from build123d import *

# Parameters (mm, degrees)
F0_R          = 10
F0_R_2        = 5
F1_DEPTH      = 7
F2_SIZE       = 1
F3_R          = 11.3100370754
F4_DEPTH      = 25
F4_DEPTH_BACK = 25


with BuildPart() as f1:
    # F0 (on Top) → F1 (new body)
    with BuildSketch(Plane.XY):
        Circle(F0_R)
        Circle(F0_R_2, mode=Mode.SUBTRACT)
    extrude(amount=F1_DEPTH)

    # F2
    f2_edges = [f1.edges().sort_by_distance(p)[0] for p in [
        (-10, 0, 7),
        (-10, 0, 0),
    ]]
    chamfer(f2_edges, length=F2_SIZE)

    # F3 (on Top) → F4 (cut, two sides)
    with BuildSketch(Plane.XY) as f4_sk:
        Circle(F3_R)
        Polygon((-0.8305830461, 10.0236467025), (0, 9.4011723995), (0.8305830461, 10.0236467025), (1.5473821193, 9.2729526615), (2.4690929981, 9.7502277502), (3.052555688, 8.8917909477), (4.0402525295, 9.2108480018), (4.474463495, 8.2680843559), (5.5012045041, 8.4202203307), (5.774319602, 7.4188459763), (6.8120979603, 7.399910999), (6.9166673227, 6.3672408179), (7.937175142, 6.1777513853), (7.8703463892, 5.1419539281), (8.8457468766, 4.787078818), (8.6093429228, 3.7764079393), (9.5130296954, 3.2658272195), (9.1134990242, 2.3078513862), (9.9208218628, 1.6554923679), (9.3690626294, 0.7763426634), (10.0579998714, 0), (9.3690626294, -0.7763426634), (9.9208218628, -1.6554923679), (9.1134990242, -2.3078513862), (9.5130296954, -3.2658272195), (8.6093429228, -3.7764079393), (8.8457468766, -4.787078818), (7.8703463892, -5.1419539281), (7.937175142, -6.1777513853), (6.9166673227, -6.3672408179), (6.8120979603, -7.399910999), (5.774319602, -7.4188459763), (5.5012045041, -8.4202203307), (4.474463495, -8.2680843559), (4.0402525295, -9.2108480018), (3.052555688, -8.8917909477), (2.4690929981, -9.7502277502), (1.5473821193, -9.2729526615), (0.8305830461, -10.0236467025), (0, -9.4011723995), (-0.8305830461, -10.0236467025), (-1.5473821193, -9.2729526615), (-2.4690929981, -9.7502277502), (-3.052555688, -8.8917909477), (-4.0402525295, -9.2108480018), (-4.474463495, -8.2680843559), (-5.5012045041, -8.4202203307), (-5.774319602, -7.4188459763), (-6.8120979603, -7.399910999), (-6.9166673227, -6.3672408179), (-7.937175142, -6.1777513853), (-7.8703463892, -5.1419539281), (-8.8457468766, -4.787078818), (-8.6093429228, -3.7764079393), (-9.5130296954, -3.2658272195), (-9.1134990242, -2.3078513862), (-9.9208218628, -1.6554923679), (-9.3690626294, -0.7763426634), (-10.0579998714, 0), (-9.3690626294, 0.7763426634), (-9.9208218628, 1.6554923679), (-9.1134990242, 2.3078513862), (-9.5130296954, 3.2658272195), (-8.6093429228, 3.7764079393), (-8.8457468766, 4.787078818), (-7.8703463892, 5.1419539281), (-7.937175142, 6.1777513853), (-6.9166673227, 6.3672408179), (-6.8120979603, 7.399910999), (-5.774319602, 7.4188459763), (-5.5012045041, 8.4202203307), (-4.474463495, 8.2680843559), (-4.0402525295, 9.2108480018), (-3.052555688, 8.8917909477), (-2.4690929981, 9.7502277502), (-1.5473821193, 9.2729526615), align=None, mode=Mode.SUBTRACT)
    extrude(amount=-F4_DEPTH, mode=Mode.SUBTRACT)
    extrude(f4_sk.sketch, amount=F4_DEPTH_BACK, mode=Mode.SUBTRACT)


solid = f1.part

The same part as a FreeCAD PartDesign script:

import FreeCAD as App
import Part
import Sketcher
from FreeCAD import Vector
Q = App.Units.Quantity


def edges_at(feature, points):
    """Names of the edges that pass closest to the given points."""
    edges = feature.Shape.Edges
    near = lambda p: min(range(len(edges)), key=lambda i: edges[i].distToShape(Part.Vertex(*p))[0])
    return sorted({f"Edge{near(p) + 1}" for p in points})

doc = App.newDocument("Part")
body = doc.addObject("PartDesign::Body", "Body")

# Sketch on XY plane
sketch1 = doc.addObject("Sketcher::SketchObject", "Sketch")
body.addObject(sketch1)
sketch1.AttachmentSupport = (doc.XY_Plane, [""])
sketch1.MapMode = "FlatFace"
sketch1.addGeometry([
    Part.Circle(Vector(0, 0, 0), Vector(0, 0, 1), 10),
    Part.Circle(Vector(0, 0, 0), Vector(0, 0, 1), 5),
], False)
sketch1.addConstraint([
    Sketcher.Constraint("Coincident", 0, 3, -1, 1),
    Sketcher.Constraint("Coincident", 1, 3, -1, 1),
    Sketcher.Constraint("Diameter", 0, Q("20 mm")),
    Sketcher.Constraint("Diameter", 1, Q("10 mm")),
])
pad1 = doc.addObject("PartDesign::Pad", "Pad")
body.addObject(pad1)
pad1.Profile = sketch1
pad1.Length = 7
doc.recompute()

chamfer = doc.addObject("PartDesign::Chamfer", "Chamfer")
body.addObject(chamfer)
chamfer.Base = (pad1, edges_at(pad1, [(-10, 0, 7), (-10, 0, 0)]))
chamfer.Size = 1

# Sketch on XY plane
sketch2 = doc.addObject("Sketcher::SketchObject", "Sketch001")
body.addObject(sketch2)
sketch2.AttachmentSupport = (doc.XY_Plane, [""])
sketch2.MapMode = "FlatFace"
sketch2.addGeometry([
    Part.Circle(Vector(0, 0, 0), Vector(0, 0, 1), 11.3),  # 0
    Part.LineSegment(Vector(-1.5, 9.3, 0), Vector(-0.8, 10, 0)),  # 1
    Part.LineSegment(Vector(-0.8, 10, 0), Vector(0, 9.4, 0)),  # 2
    Part.LineSegment(Vector(0, 9.4, 0), Vector(0.8, 10, 0)),  # 3
    Part.LineSegment(Vector(0.8, 10, 0), Vector(1.5, 9.3, 0)),  # 4
    Part.LineSegment(Vector(1.5, 9.3, 0), Vector(2.5, 9.8, 0)),  # 5
    Part.LineSegment(Vector(2.5, 9.8, 0), Vector(3.1, 8.9, 0)),  # 6
    Part.LineSegment(Vector(3.1, 8.9, 0), Vector(4, 9.2, 0)),  # 7
    Part.LineSegment(Vector(4, 9.2, 0), Vector(4.5, 8.3, 0)),  # 8
    Part.LineSegment(Vector(4.5, 8.3, 0), Vector(5.5, 8.4, 0)),  # 9
    Part.LineSegment(Vector(5.5, 8.4, 0), Vector(5.8, 7.4, 0)),  # 10
    Part.LineSegment(Vector(5.8, 7.4, 0), Vector(6.8, 7.4, 0)),  # 11
    Part.LineSegment(Vector(6.8, 7.4, 0), Vector(6.9, 6.4, 0)),  # 12
    Part.LineSegment(Vector(6.9, 6.4, 0), Vector(7.9, 6.2, 0)),  # 13
    Part.LineSegment(Vector(7.9, 6.2, 0), Vector(7.9, 5.1, 0)),  # 14
    Part.LineSegment(Vector(7.9, 5.1, 0), Vector(8.8, 4.8, 0)),  # 15
    Part.LineSegment(Vector(8.8, 4.8, 0), Vector(8.6, 3.8, 0)),  # 16
    Part.LineSegment(Vector(8.6, 3.8, 0), Vector(9.5, 3.3, 0)),  # 17
    Part.LineSegment(Vector(9.5, 3.3, 0), Vector(9.1, 2.3, 0)),  # 18
    Part.LineSegment(Vector(9.1, 2.3, 0), Vector(9.9, 1.7, 0)),  # 19
    Part.LineSegment(Vector(9.9, 1.7, 0), Vector(9.4, 0.8, 0)),  # 20
    Part.LineSegment(Vector(9.4, 0.8, 0), Vector(10.1, 0, 0)),  # 21
    Part.LineSegment(Vector(10.1, 0, 0), Vector(9.4, -0.8, 0)),  # 22
    Part.LineSegment(Vector(9.4, -0.8, 0), Vector(9.9, -1.7, 0)),  # 23
    Part.LineSegment(Vector(9.9, -1.7, 0), Vector(9.1, -2.3, 0)),  # 24
    Part.LineSegment(Vector(9.1, -2.3, 0), Vector(9.5, -3.3, 0)),  # 25
    Part.LineSegment(Vector(9.5, -3.3, 0), Vector(8.6, -3.8, 0)),  # 26
    Part.LineSegment(Vector(8.6, -3.8, 0), Vector(8.8, -4.8, 0)),  # 27
    Part.LineSegment(Vector(8.8, -4.8, 0), Vector(7.9, -5.1, 0)),  # 28
    Part.LineSegment(Vector(7.9, -5.1, 0), Vector(7.9, -6.2, 0)),  # 29
    Part.LineSegment(Vector(7.9, -6.2, 0), Vector(6.9, -6.4, 0)),  # 30
    Part.LineSegment(Vector(6.9, -6.4, 0), Vector(6.8, -7.4, 0)),  # 31
    Part.LineSegment(Vector(6.8, -7.4, 0), Vector(5.8, -7.4, 0)),  # 32
    Part.LineSegment(Vector(5.8, -7.4, 0), Vector(5.5, -8.4, 0)),  # 33
    Part.LineSegment(Vector(5.5, -8.4, 0), Vector(4.5, -8.3, 0)),  # 34
    Part.LineSegment(Vector(4.5, -8.3, 0), Vector(4, -9.2, 0)),  # 35
    Part.LineSegment(Vector(4, -9.2, 0), Vector(3.1, -8.9, 0)),  # 36
    Part.LineSegment(Vector(3.1, -8.9, 0), Vector(2.5, -9.8, 0)),  # 37
    Part.LineSegment(Vector(2.5, -9.8, 0), Vector(1.5, -9.3, 0)),  # 38
    Part.LineSegment(Vector(1.5, -9.3, 0), Vector(0.8, -10, 0)),  # 39
    Part.LineSegment(Vector(0.8, -10, 0), Vector(0, -9.4, 0)),  # 40
    Part.LineSegment(Vector(0, -9.4, 0), Vector(-0.8, -10, 0)),  # 41
    Part.LineSegment(Vector(-0.8, -10, 0), Vector(-1.5, -9.3, 0)),  # 42
    Part.LineSegment(Vector(-1.5, -9.3, 0), Vector(-2.5, -9.8, 0)),  # 43
    Part.LineSegment(Vector(-2.5, -9.8, 0), Vector(-3.1, -8.9, 0)),  # 44
    Part.LineSegment(Vector(-3.1, -8.9, 0), Vector(-4, -9.2, 0)),  # 45
    Part.LineSegment(Vector(-4, -9.2, 0), Vector(-4.5, -8.3, 0)),  # 46
    Part.LineSegment(Vector(-4.5, -8.3, 0), Vector(-5.5, -8.4, 0)),  # 47
    Part.LineSegment(Vector(-5.5, -8.4, 0), Vector(-5.8, -7.4, 0)),  # 48
    Part.LineSegment(Vector(-5.8, -7.4, 0), Vector(-6.8, -7.4, 0)),  # 49
    Part.LineSegment(Vector(-6.8, -7.4, 0), Vector(-6.9, -6.4, 0)),  # 50
    Part.LineSegment(Vector(-6.9, -6.4, 0), Vector(-7.9, -6.2, 0)),  # 51
    Part.LineSegment(Vector(-7.9, -6.2, 0), Vector(-7.9, -5.1, 0)),  # 52
    Part.LineSegment(Vector(-7.9, -5.1, 0), Vector(-8.8, -4.8, 0)),  # 53
    Part.LineSegment(Vector(-8.8, -4.8, 0), Vector(-8.6, -3.8, 0)),  # 54
    Part.LineSegment(Vector(-8.6, -3.8, 0), Vector(-9.5, -3.3, 0)),  # 55
    Part.LineSegment(Vector(-9.5, -3.3, 0), Vector(-9.1, -2.3, 0)),  # 56
    Part.LineSegment(Vector(-9.1, -2.3, 0), Vector(-9.9, -1.7, 0)),  # 57
    Part.LineSegment(Vector(-9.9, -1.7, 0), Vector(-9.4, -0.8, 0)),  # 58
    Part.LineSegment(Vector(-9.4, -0.8, 0), Vector(-10.1, 0, 0)),  # 59
    Part.LineSegment(Vector(-10.1, 0, 0), Vector(-9.4, 0.8, 0)),  # 60
    Part.LineSegment(Vector(-9.4, 0.8, 0), Vector(-9.9, 1.7, 0)),  # 61
    Part.LineSegment(Vector(-9.9, 1.7, 0), Vector(-9.1, 2.3, 0)),  # 62
    Part.LineSegment(Vector(-9.1, 2.3, 0), Vector(-9.5, 3.3, 0)),  # 63
    Part.LineSegment(Vector(-9.5, 3.3, 0), Vector(-8.6, 3.8, 0)),  # 64
    Part.LineSegment(Vector(-8.6, 3.8, 0), Vector(-8.8, 4.8, 0)),  # 65
    Part.LineSegment(Vector(-8.8, 4.8, 0), Vector(-7.9, 5.1, 0)),  # 66
    Part.LineSegment(Vector(-7.9, 5.1, 0), Vector(-7.9, 6.2, 0)),  # 67
    Part.LineSegment(Vector(-7.9, 6.2, 0), Vector(-6.9, 6.4, 0)),  # 68
    Part.LineSegment(Vector(-6.9, 6.4, 0), Vector(-6.8, 7.4, 0)),  # 69
    Part.LineSegment(Vector(-6.8, 7.4, 0), Vector(-5.8, 7.4, 0)),  # 70
    Part.LineSegment(Vector(-5.8, 7.4, 0), Vector(-5.5, 8.4, 0)),  # 71
    Part.LineSegment(Vector(-5.5, 8.4, 0), Vector(-4.5, 8.3, 0)),  # 72
    Part.LineSegment(Vector(-4.5, 8.3, 0), Vector(-4, 9.2, 0)),  # 73
    Part.LineSegment(Vector(-4, 9.2, 0), Vector(-3.1, 8.9, 0)),  # 74
    Part.LineSegment(Vector(-3.1, 8.9, 0), Vector(-2.5, 9.8, 0)),  # 75
    Part.LineSegment(Vector(-2.5, 9.8, 0), Vector(-1.5, 9.3, 0)),  # 76
], False)
sketch2.addConstraint([
    Sketcher.Constraint("Coincident", 1, 2, 2, 1),
    Sketcher.Constraint("Coincident", 2, 2, 3, 1),
    Sketcher.Constraint("Coincident", 3, 2, 4, 1),
    Sketcher.Constraint("Coincident", 4, 2, 5, 1),
    Sketcher.Constraint("Coincident", 5, 2, 6, 1),
    Sketcher.Constraint("Coincident", 6, 2, 7, 1),
    Sketcher.Constraint("Coincident", 7, 2, 8, 1),
    Sketcher.Constraint("Coincident", 8, 2, 9, 1),
    Sketcher.Constraint("Coincident", 9, 2, 10, 1),
    Sketcher.Constraint("Coincident", 10, 2, 11, 1),
    Sketcher.Constraint("Coincident", 11, 2, 12, 1),
    Sketcher.Constraint("Coincident", 12, 2, 13, 1),
    Sketcher.Constraint("Coincident", 13, 2, 14, 1),
    Sketcher.Constraint("Coincident", 14, 2, 15, 1),
    Sketcher.Constraint("Coincident", 15, 2, 16, 1),
    Sketcher.Constraint("Coincident", 16, 2, 17, 1),
    Sketcher.Constraint("Coincident", 17, 2, 18, 1),
    Sketcher.Constraint("Coincident", 18, 2, 19, 1),
    Sketcher.Constraint("Coincident", 19, 2, 20, 1),
    Sketcher.Constraint("Coincident", 20, 2, 21, 1),
    Sketcher.Constraint("Coincident", 21, 2, 22, 1),
    Sketcher.Constraint("Coincident", 22, 2, 23, 1),
    Sketcher.Constraint("Coincident", 23, 2, 24, 1),
    Sketcher.Constraint("Coincident", 24, 2, 25, 1),
    Sketcher.Constraint("Coincident", 25, 2, 26, 1),
    Sketcher.Constraint("Coincident", 26, 2, 27, 1),
    Sketcher.Constraint("Coincident", 27, 2, 28, 1),
    Sketcher.Constraint("Coincident", 28, 2, 29, 1),
    Sketcher.Constraint("Coincident", 29, 2, 30, 1),
    Sketcher.Constraint("Coincident", 30, 2, 31, 1),
    Sketcher.Constraint("Coincident", 31, 2, 32, 1),
    Sketcher.Constraint("Coincident", 32, 2, 33, 1),
    Sketcher.Constraint("Coincident", 33, 2, 34, 1),
    Sketcher.Constraint("Coincident", 34, 2, 35, 1),
    Sketcher.Constraint("Coincident", 35, 2, 36, 1),
    Sketcher.Constraint("Coincident", 36, 2, 37, 1),
    Sketcher.Constraint("Coincident", 37, 2, 38, 1),
    Sketcher.Constraint("Coincident", 38, 2, 39, 1),
    Sketcher.Constraint("Coincident", 39, 2, 40, 1),
    Sketcher.Constraint("Coincident", 40, 2, 41, 1),
    Sketcher.Constraint("Coincident", 41, 2, 42, 1),
    Sketcher.Constraint("Coincident", 42, 2, 43, 1),
    Sketcher.Constraint("Coincident", 43, 2, 44, 1),
    Sketcher.Constraint("Coincident", 44, 2, 45, 1),
    Sketcher.Constraint("Coincident", 45, 2, 46, 1),
    Sketcher.Constraint("Coincident", 46, 2, 47, 1),
    Sketcher.Constraint("Coincident", 47, 2, 48, 1),
    Sketcher.Constraint("Coincident", 48, 2, 49, 1),
    Sketcher.Constraint("Coincident", 49, 2, 50, 1),
    Sketcher.Constraint("Coincident", 50, 2, 51, 1),
    Sketcher.Constraint("Coincident", 51, 2, 52, 1),
    Sketcher.Constraint("Coincident", 52, 2, 53, 1),
    Sketcher.Constraint("Coincident", 53, 2, 54, 1),
    Sketcher.Constraint("Coincident", 54, 2, 55, 1),
    Sketcher.Constraint("Coincident", 55, 2, 56, 1),
    Sketcher.Constraint("Coincident", 56, 2, 57, 1),
    Sketcher.Constraint("Coincident", 57, 2, 58, 1),
    Sketcher.Constraint("Coincident", 58, 2, 59, 1),
    Sketcher.Constraint("Coincident", 59, 2, 60, 1),
    Sketcher.Constraint("Coincident", 60, 2, 61, 1),
    Sketcher.Constraint("Coincident", 61, 2, 62, 1),
    Sketcher.Constraint("Coincident", 62, 2, 63, 1),
    Sketcher.Constraint("Coincident", 63, 2, 64, 1),
    Sketcher.Constraint("Coincident", 64, 2, 65, 1),
    Sketcher.Constraint("Coincident", 65, 2, 66, 1),
    Sketcher.Constraint("Coincident", 66, 2, 67, 1),
    Sketcher.Constraint("Coincident", 67, 2, 68, 1),
    Sketcher.Constraint("Coincident", 68, 2, 69, 1),
    Sketcher.Constraint("Coincident", 69, 2, 70, 1),
    Sketcher.Constraint("Coincident", 70, 2, 71, 1),
    Sketcher.Constraint("Coincident", 71, 2, 72, 1),
    Sketcher.Constraint("Coincident", 72, 2, 73, 1),
    Sketcher.Constraint("Coincident", 73, 2, 74, 1),
    Sketcher.Constraint("Coincident", 74, 2, 75, 1),
    Sketcher.Constraint("Coincident", 75, 2, 76, 1),
    Sketcher.Constraint("Coincident", 76, 2, 1, 1),
    Sketcher.Constraint("Coincident", 0, 3, -1, 1),
    Sketcher.Constraint("Symmetric", 1, 2, 39, 2, -1, 1),
    Sketcher.Constraint("Symmetric", 2, 2, 40, 2, -1, 1),
    Sketcher.Constraint("Symmetric", 3, 2, 41, 2, -1, 1),
    Sketcher.Constraint("Symmetric", 4, 2, 42, 2, -1, 1),
    Sketcher.Constraint("Symmetric", 5, 2, 43, 2, -1, 1),
    Sketcher.Constraint("Symmetric", 6, 2, 44, 2, -1, 1),
    Sketcher.Constraint("Symmetric", 7, 2, 45, 2, -1, 1),
    Sketcher.Constraint("Symmetric", 8, 2, 46, 2, -1, 1),
    Sketcher.Constraint("Symmetric", 9, 2, 47, 2, -1, 1),
    Sketcher.Constraint("Symmetric", 10, 2, 48, 2, -1, 1),
    Sketcher.Constraint("Symmetric", 11, 2, 49, 2, -1, 1),
    Sketcher.Constraint("Symmetric", 12, 2, 50, 2, -1, 1),
    Sketcher.Constraint("Symmetric", 13, 2, 51, 2, -1, 1),
    Sketcher.Constraint("Symmetric", 14, 2, 52, 2, -1, 1),
    Sketcher.Constraint("Symmetric", 15, 2, 53, 2, -1, 1),
    Sketcher.Constraint("Symmetric", 16, 2, 54, 2, -1, 1),
    Sketcher.Constraint("Symmetric", 17, 2, 55, 2, -1, 1),
    Sketcher.Constraint("Symmetric", 18, 2, 56, 2, -1, 1),
    Sketcher.Constraint("Symmetric", 19, 2, 57, 2, -1, 1),
    Sketcher.Constraint("Symmetric", 20, 2, 58, 2, -1, 1),
    Sketcher.Constraint("Symmetric", 21, 2, 59, 2, -1, 1),
    Sketcher.Constraint("Symmetric", 22, 2, 60, 2, -1, 1),
    Sketcher.Constraint("Symmetric", 23, 2, 61, 2, -1, 1),
    Sketcher.Constraint("Symmetric", 24, 2, 62, 2, -1, 1),
    Sketcher.Constraint("Symmetric", 25, 2, 63, 2, -1, 1),
    Sketcher.Constraint("Symmetric", 26, 2, 64, 2, -1, 1),
    Sketcher.Constraint("Symmetric", 27, 2, 65, 2, -1, 1),
    Sketcher.Constraint("Symmetric", 28, 2, 66, 2, -1, 1),
    Sketcher.Constraint("Symmetric", 29, 2, 67, 2, -1, 1),
    Sketcher.Constraint("Symmetric", 30, 2, 68, 2, -1, 1),
    Sketcher.Constraint("Symmetric", 31, 2, 69, 2, -1, 1),
    Sketcher.Constraint("Symmetric", 32, 2, 70, 2, -1, 1),
    Sketcher.Constraint("Symmetric", 33, 2, 71, 2, -1, 1),
    Sketcher.Constraint("Symmetric", 34, 2, 72, 2, -1, 1),
    Sketcher.Constraint("Symmetric", 35, 2, 73, 2, -1, 1),
    Sketcher.Constraint("Symmetric", 36, 2, 74, 2, -1, 1),
    Sketcher.Constraint("Symmetric", 37, 2, 75, 2, -1, 1),
    Sketcher.Constraint("Symmetric", 38, 2, 76, 2, -1, 1),
    Sketcher.Constraint("Symmetric", 1, 2, 3, 2, -2),
    Sketcher.Constraint("Symmetric", 38, 2, 42, 2, -2),
    Sketcher.Constraint("Symmetric", 37, 2, 43, 2, -2),
    Sketcher.Constraint("Symmetric", 36, 2, 44, 2, -2),
    Sketcher.Constraint("Symmetric", 35, 2, 45, 2, -2),
    Sketcher.Constraint("Symmetric", 34, 2, 46, 2, -2),
    Sketcher.Constraint("Symmetric", 33, 2, 47, 2, -2),
    Sketcher.Constraint("Symmetric", 32, 2, 48, 2, -2),
    Sketcher.Constraint("Symmetric", 31, 2, 49, 2, -2),
    Sketcher.Constraint("Symmetric", 30, 2, 50, 2, -2),
    Sketcher.Constraint("Symmetric", 29, 2, 51, 2, -2),
    Sketcher.Constraint("Symmetric", 28, 2, 52, 2, -2),
    Sketcher.Constraint("Symmetric", 27, 2, 53, 2, -2),
    Sketcher.Constraint("Symmetric", 26, 2, 54, 2, -2),
    Sketcher.Constraint("Symmetric", 25, 2, 55, 2, -2),
    Sketcher.Constraint("Symmetric", 24, 2, 56, 2, -2),
    Sketcher.Constraint("Symmetric", 23, 2, 57, 2, -2),
    Sketcher.Constraint("Symmetric", 22, 2, 58, 2, -2),
    Sketcher.Constraint("PointOnObject", 2, 2, -2),
    Sketcher.Constraint("PointOnObject", 21, 2, -1),
    Sketcher.Constraint("Equal", 1, 2),
    Sketcher.Constraint("Equal", 4, 5),
    Sketcher.Constraint("Equal", 5, 6),
    Sketcher.Constraint("Equal", 6, 7),
    Sketcher.Constraint("Equal", 7, 8),
    Sketcher.Constraint("Equal", 8, 9),
    Sketcher.Constraint("Equal", 9, 10),
    Sketcher.Constraint("Equal", 10, 11),
    Sketcher.Constraint("Equal", 11, 12),
    Sketcher.Constraint("Equal", 12, 13),
    Sketcher.Constraint("Equal", 13, 14),
    Sketcher.Constraint("Equal", 14, 15),
    Sketcher.Constraint("Equal", 15, 16),
    Sketcher.Constraint("Equal", 16, 17),
    Sketcher.Constraint("Equal", 17, 18),
    Sketcher.Constraint("Equal", 18, 19),
    Sketcher.Constraint("Equal", 19, 20),
    Sketcher.Constraint("Equal", 20, 21),
    Sketcher.Constraint("Diameter", 0, Q("22.620074 mm")),
    Sketcher.Constraint("DistanceX", -1, 1, 21, 2, Q("10.058 mm")),
    Sketcher.Constraint("DistanceX", -1, 1, 18, 2, Q("9.113499 mm")),
    Sketcher.Constraint("Distance", 1, Q("1.037951 mm")),
    Sketcher.Constraint("DistanceY", -1, 1, 6, 2, Q("8.891791 mm")),
    Sketcher.Constraint("DistanceY", -1, 1, 7, 2, Q("9.210848 mm")),
    Sketcher.Constraint("DistanceY", -1, 1, 9, 2, Q("8.42022 mm")),
    Sketcher.Constraint("DistanceX", -1, 1, 10, 2, Q("5.77432 mm")),
    Sketcher.Constraint("DistanceY", -1, 1, 11, 2, Q("7.399911 mm")),
    Sketcher.Constraint("DistanceY", -1, 1, 12, 2, Q("6.367241 mm")),
    Sketcher.Constraint("DistanceY", -1, 1, 13, 2, Q("6.177751 mm")),
    Sketcher.Constraint("DistanceY", -1, 1, 15, 2, Q("4.787079 mm")),
    Sketcher.Constraint("DistanceX", -1, 1, 17, 2, Q("9.51303 mm")),
    Sketcher.Constraint("DistanceY", -1, 1, 18, 2, Q("2.307851 mm")),
    Sketcher.Constraint("DistanceX", -1, 1, 19, 2, Q("9.920822 mm")),
    Sketcher.Constraint("DistanceX", 1, 2, -1, 1, Q("0.830583 mm")),
    Sketcher.Constraint("DistanceY", -1, 1, 1, 2, Q("10.023647 mm")),
    Sketcher.Constraint("DistanceX", -1, 1, 4, 2, Q("1.547382 mm")),
    Sketcher.Constraint("DistanceX", -1, 1, 5, 2, Q("2.469093 mm")),
    Sketcher.Constraint("DistanceX", -1, 1, 8, 2, Q("4.474463 mm")),
    Sketcher.Constraint("DistanceX", -1, 1, 14, 2, Q("7.870346 mm")),
])
pocket1 = doc.addObject("PartDesign::Pocket", "Pocket")
body.addObject(pocket1)
pocket1.Profile = sketch2
pocket1.Type = "ThroughAll"
pocket1.Midplane = True

doc.recompute()
